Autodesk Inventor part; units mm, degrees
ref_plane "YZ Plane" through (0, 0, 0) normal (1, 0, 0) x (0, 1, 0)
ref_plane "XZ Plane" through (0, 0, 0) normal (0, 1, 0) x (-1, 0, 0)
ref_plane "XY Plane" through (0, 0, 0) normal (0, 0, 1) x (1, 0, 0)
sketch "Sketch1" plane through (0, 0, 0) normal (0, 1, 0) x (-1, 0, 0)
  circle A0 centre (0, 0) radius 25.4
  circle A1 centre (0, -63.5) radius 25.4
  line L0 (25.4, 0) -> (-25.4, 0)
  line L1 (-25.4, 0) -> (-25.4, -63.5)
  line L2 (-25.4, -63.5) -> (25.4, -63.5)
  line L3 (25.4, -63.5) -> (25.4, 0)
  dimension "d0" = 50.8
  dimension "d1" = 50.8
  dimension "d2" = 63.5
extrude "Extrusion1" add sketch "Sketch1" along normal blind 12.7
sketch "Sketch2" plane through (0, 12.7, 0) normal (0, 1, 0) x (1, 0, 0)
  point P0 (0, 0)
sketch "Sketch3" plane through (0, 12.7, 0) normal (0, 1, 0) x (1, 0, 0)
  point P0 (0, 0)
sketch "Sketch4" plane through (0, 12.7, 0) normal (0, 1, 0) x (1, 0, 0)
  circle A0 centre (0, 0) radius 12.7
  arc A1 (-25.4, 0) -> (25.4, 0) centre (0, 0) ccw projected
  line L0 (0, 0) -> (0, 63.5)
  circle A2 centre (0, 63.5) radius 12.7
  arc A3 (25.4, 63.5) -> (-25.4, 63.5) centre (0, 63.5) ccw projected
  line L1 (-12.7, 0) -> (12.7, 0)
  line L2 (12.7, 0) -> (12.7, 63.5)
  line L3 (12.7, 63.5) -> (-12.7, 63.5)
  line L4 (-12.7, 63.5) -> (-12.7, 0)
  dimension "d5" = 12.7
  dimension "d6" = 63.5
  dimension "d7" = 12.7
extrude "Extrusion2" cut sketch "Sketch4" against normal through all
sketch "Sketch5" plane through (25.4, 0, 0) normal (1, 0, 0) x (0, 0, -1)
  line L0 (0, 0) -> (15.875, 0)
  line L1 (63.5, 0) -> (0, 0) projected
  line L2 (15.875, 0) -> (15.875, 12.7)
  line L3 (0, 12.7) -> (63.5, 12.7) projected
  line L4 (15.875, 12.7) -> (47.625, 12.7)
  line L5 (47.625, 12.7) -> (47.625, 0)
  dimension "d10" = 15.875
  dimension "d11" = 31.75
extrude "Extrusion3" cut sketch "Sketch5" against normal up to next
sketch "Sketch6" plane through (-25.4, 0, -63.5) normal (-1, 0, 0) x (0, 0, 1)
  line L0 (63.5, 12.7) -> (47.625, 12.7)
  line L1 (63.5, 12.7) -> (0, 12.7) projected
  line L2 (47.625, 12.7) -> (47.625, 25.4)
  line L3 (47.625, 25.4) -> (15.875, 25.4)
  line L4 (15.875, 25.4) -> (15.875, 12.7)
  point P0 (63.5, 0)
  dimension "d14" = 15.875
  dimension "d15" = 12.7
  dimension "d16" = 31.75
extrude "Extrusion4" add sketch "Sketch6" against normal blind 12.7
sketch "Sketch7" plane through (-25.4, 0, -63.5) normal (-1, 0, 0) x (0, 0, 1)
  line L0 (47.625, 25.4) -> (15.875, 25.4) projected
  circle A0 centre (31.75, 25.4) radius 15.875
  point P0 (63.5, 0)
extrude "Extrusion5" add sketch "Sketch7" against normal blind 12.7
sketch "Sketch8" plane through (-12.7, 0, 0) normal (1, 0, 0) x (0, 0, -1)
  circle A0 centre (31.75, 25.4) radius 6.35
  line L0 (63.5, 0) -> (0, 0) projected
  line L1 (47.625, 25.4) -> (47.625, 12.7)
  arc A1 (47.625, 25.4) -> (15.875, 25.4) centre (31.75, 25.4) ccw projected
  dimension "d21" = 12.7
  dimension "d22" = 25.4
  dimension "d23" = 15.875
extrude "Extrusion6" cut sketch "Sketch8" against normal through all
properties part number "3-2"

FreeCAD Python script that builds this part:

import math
import FreeCAD as App
import Part
import Sketcher
Q = App.Units.Quantity

doc = App.newDocument("Part")
body = doc.addObject("PartDesign::Body", "Body")

# Sketch on XZ plane
sketch1 = body.newObject("Sketcher::SketchObject", "Sketch")
sketch1.AttachmentSupport = (doc.getObject("XZ_Plane"), [""])
sketch1.MapMode = "FlatFace"
sketch1.addGeometry([
    Part.ArcOfCircle(Part.Circle(App.Vector(0, 0, 0), App.Vector(0, 0, 1), 25), math.radians(0), math.radians(180)),
    Part.LineSegment(App.Vector(25, 0, 0), App.Vector(25, -64, 0)),
    Part.ArcOfCircle(Part.Circle(App.Vector(0, -64, 0), App.Vector(0, 0, 1), 25), math.radians(180), math.radians(360)),
    Part.LineSegment(App.Vector(-25, -64, 0), App.Vector(-25, 0, 0)),
], False)
sketch1.addConstraint([
    Sketcher.Constraint("Tangent", 0, 1, 1, 1),
    Sketcher.Constraint("Tangent", 1, 2, 2, 2),
    Sketcher.Constraint("Tangent", 2, 1, 3, 1),
    Sketcher.Constraint("Tangent", 3, 2, 0, 2),
    Sketcher.Constraint("Vertical", 1),
    Sketcher.Constraint("Vertical", 3),
    Sketcher.Constraint("Coincident", 0, 3, -1, 1),
    Sketcher.Constraint("Radius", 0, Q("1 in")),
    Sketcher.Constraint("DistanceY", 1, 2, 1, 1, Q("2.5 in")),
])
pad1 = body.newObject("PartDesign::Pad", "Pad")
pad1.Profile = sketch1
pad1.Length = Q("0.5 in")
pad1.Reversed = True

# Sketch on XZ plane
sketch2 = body.newObject("Sketcher::SketchObject", "Sketch001")
sketch2.AttachmentSupport = (doc.getObject("XZ_Plane"), [""])
sketch2.MapMode = "FlatFace"
sketch2.AttachmentOffset = App.Placement(App.Vector(0, 0, -0.5 * 25.4), App.Rotation())
sketch2.addGeometry([
    Part.ArcOfCircle(Part.Circle(App.Vector(0, 0, 0), App.Vector(0, 0, 1), 13), math.radians(0), math.radians(180)),
    Part.LineSegment(App.Vector(13, 0, 0), App.Vector(13, -64, 0)),
    Part.ArcOfCircle(Part.Circle(App.Vector(0, -64, 0), App.Vector(0, 0, 1), 13), math.radians(180), math.radians(360)),
    Part.LineSegment(App.Vector(-13, -64, 0), App.Vector(-13, 0, 0)),
], False)
sketch2.addConstraint([
    Sketcher.Constraint("Tangent", 0, 1, 1, 1),
    Sketcher.Constraint("Tangent", 1, 2, 2, 2),
    Sketcher.Constraint("Tangent", 2, 1, 3, 1),
    Sketcher.Constraint("Tangent", 3, 2, 0, 2),
    Sketcher.Constraint("Vertical", 1),
    Sketcher.Constraint("Vertical", 3),
    Sketcher.Constraint("Coincident", 0, 3, -1, 1),
    Sketcher.Constraint("Radius", 0, Q("0.5 in")),
    Sketcher.Constraint("DistanceY", 1, 2, 1, 1, Q("2.5 in")),
])
pocket1 = body.newObject("PartDesign::Pocket", "Pocket")
pocket1.Profile = sketch2
pocket1.Type = "ThroughAll"
pocket1.Reversed = True

# Sketch on YZ plane
sketch3 = body.newObject("Sketcher::SketchObject", "Sketch002")
sketch3.AttachmentSupport = (doc.getObject("YZ_Plane"), [""])
sketch3.MapMode = "FlatFace"
sketch3.AttachmentOffset = App.Placement(App.Vector(0, 0, 1 * 25.4), App.Rotation())
sketch3.addGeometry([
    Part.LineSegment(App.Vector(0, -16, 0), App.Vector(0, -48, 0)),
    Part.LineSegment(App.Vector(0, -48, 0), App.Vector(13, -48, 0)),
    Part.LineSegment(App.Vector(13, -48, 0), App.Vector(13, -16, 0)),
    Part.LineSegment(App.Vector(13, -16, 0), App.Vector(0, -16, 0)),
], False)
sketch3.addConstraint([
    Sketcher.Constraint("Coincident", 0, 2, 1, 1),
    Sketcher.Constraint("Coincident", 1, 2, 2, 1),
    Sketcher.Constraint("Coincident", 2, 2, 3, 1),
    Sketcher.Constraint("Coincident", 3, 2, 0, 1),
    Sketcher.Constraint("Vertical", 0),
    Sketcher.Constraint("Horizontal", 1),
    Sketcher.Constraint("Vertical", 2),
    Sketcher.Constraint("Horizontal", 3),
    Sketcher.Constraint("PointOnObject", 0, 2, -2),
    Sketcher.Constraint("DistanceY", 0, 2, 0, 1, Q("1.25 in")),
    Sketcher.Constraint("DistanceX", 1, 1, 1, 2, Q("0.5 in")),
    Sketcher.Constraint("DistanceY", 2, 2, -1, 1, Q("0.625 in")),
])
pocket2 = body.newObject("PartDesign::Pocket", "Pocket001")
pocket2.Profile = sketch3
pocket2.Type = "UpToFirst"

# Sketch on YZ plane
sketch4 = body.newObject("Sketcher::SketchObject", "Sketch003")
sketch4.AttachmentSupport = (doc.getObject("YZ_Plane"), [""])
sketch4.MapMode = "FlatFace"
sketch4.AttachmentOffset = App.Placement(App.Vector(0, 0, -1 * 25.4), App.Rotation())
sketch4.addGeometry([
    Part.LineSegment(App.Vector(13, -48, 0), App.Vector(13, -16, 0)),
    Part.LineSegment(App.Vector(13, -16, 0), App.Vector(25, -16, 0)),
    Part.LineSegment(App.Vector(25, -16, 0), App.Vector(25, -48, 0)),
    Part.LineSegment(App.Vector(25, -48, 0), App.Vector(13, -48, 0)),
], False)
sketch4.addConstraint([
    Sketcher.Constraint("Coincident", 0, 2, 1, 1),
    Sketcher.Constraint("Coincident", 1, 2, 2, 1),
    Sketcher.Constraint("Coincident", 2, 2, 3, 1),
    Sketcher.Constraint("Coincident", 3, 2, 0, 1),
    Sketcher.Constraint("Vertical", 0),
    Sketcher.Constraint("Horizontal", 1),
    Sketcher.Constraint("Vertical", 2),
    Sketcher.Constraint("Horizontal", 3),
    Sketcher.Constraint("DistanceX", 1, 1, 1, 2, Q("0.5 in")),
    Sketcher.Constraint("DistanceY", 0, 1, 0, 2, Q("1.25 in")),
    Sketcher.Constraint("DistanceX", -1, 1, 0, 2, Q("0.5 in")),
    Sketcher.Constraint("DistanceY", 0, 2, -1, 1, Q("0.625 in")),
])
pad2 = body.newObject("PartDesign::Pad", "Pad001")
pad2.Profile = sketch4
pad2.Length = Q("0.5 in")

# Sketch on YZ plane
sketch5 = body.newObject("Sketcher::SketchObject", "Sketch004")
sketch5.AttachmentSupport = (doc.getObject("YZ_Plane"), [""])
sketch5.MapMode = "FlatFace"
sketch5.AttachmentOffset = App.Placement(App.Vector(0, 0, -1 * 25.4), App.Rotation())
sketch5.addGeometry(Part.Circle(App.Vector(25, -32, 0), App.Vector(0, 0, 1), 16), False)
sketch5.addConstraint([
    Sketcher.Constraint("Diameter", 0, Q("1.25 in")),
    Sketcher.Constraint("DistanceX", -1, 1, 0, 3, Q("1 in")),
    Sketcher.Constraint("DistanceY", 0, 3, -1, 1, Q("1.25 in")),
])
pad3 = body.newObject("PartDesign::Pad", "Pad002")
pad3.Profile = sketch5
pad3.Length = Q("0.5 in")

# Sketch on YZ plane
sketch6 = body.newObject("Sketcher::SketchObject", "Sketch005")
sketch6.AttachmentSupport = (doc.getObject("YZ_Plane"), [""])
sketch6.MapMode = "FlatFace"
sketch6.AttachmentOffset = App.Placement(App.Vector(0, 0, -0.5 * 25.4), App.Rotation())
sketch6.addGeometry(Part.Circle(App.Vector(25, -32, 0), App.Vector(0, 0, 1), 6), False)
sketch6.addConstraint([
    Sketcher.Constraint("Diameter", 0, Q("0.5 in")),
    Sketcher.Constraint("DistanceX", -1, 1, 0, 3, Q("1 in")),
    Sketcher.Constraint("DistanceY", 0, 3, -1, 1, Q("1.25 in")),
])
pocket3 = body.newObject("PartDesign::Pocket", "Pocket002")
pocket3.Profile = sketch6
pocket3.Type = "ThroughAll"

doc.recompute()
